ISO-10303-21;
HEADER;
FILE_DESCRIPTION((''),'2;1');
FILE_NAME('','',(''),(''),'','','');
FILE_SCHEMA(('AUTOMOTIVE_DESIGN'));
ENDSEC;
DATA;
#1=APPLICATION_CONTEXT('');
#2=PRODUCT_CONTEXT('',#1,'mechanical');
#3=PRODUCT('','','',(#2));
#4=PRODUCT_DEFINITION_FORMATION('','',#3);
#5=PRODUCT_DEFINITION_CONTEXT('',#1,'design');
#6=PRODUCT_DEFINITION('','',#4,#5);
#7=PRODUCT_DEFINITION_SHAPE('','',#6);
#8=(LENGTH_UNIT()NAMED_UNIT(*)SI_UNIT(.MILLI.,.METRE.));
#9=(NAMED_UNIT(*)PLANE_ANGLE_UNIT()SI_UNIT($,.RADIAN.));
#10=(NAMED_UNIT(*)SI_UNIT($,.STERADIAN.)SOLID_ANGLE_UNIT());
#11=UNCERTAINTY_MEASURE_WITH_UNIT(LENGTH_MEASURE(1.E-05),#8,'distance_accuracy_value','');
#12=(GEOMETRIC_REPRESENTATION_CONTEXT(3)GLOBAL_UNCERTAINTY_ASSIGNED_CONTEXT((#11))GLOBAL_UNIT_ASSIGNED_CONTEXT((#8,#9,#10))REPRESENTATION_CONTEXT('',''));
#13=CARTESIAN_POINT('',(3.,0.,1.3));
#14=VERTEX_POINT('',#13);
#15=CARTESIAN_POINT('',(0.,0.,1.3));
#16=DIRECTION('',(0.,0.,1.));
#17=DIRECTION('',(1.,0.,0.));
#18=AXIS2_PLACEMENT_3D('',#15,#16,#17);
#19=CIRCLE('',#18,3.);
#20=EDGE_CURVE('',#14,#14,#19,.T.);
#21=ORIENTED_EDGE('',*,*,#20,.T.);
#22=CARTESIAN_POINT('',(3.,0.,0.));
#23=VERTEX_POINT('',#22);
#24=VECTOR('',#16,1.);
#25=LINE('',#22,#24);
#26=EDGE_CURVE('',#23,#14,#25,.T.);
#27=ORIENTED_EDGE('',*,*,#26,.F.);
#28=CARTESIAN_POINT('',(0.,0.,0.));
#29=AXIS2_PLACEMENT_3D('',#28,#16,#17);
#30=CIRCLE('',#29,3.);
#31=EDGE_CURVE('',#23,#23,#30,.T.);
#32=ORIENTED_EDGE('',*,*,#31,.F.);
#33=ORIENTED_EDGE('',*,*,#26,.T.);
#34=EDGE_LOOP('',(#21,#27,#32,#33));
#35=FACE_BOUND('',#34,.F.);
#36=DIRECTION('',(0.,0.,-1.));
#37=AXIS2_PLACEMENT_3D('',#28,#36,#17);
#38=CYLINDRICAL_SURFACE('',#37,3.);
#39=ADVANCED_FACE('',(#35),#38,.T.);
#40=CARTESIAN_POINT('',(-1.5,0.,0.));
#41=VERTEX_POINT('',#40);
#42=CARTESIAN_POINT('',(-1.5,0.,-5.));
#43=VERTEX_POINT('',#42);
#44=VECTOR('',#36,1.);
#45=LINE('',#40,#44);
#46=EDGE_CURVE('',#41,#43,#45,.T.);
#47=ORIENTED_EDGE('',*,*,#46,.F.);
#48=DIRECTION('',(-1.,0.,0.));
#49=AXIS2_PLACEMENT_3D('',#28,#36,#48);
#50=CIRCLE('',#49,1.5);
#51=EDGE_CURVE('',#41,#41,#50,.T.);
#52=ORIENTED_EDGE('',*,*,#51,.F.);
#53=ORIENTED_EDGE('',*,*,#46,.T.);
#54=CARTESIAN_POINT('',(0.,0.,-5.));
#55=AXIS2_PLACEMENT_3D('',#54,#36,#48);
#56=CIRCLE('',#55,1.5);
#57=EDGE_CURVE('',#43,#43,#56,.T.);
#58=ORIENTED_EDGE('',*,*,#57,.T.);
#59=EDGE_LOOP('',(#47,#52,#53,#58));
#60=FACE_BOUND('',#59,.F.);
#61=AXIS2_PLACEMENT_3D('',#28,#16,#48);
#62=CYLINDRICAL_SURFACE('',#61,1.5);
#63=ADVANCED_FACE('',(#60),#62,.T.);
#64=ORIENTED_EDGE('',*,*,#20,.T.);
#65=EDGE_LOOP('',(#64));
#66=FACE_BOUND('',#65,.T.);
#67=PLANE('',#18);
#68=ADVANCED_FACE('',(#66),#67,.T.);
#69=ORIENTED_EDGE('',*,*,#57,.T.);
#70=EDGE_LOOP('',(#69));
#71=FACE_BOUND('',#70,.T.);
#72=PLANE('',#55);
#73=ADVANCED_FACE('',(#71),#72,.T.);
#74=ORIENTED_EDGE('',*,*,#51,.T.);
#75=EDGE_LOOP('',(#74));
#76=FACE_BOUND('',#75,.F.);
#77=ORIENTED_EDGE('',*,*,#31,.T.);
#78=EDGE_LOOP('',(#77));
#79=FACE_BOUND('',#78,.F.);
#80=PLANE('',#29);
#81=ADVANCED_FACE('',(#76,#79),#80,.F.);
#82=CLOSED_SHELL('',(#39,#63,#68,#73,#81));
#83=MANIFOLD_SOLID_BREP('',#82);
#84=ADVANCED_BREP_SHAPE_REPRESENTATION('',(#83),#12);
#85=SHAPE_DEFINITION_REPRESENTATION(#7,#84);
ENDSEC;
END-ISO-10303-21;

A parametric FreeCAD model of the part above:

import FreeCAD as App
import Part
import Sketcher
from FreeCAD import Vector
Q = App.Units.Quantity

doc = App.newDocument("Part")
body = doc.addObject("PartDesign::Body", "Body")

# Sketch on XY plane
sketch1 = body.newObject("Sketcher::SketchObject", "Sketch")
sketch1.AttachmentSupport = (doc.getObject("XY_Plane"), [""])
sketch1.MapMode = "FlatFace"
sketch1.addGeometry(Part.Circle(Vector(0, 0, 0), Vector(0, 0, 1), 3), False)
sketch1.addConstraint(Sketcher.Constraint("Coincident", 0, 3, -1, 1))
sketch1.addConstraint(Sketcher.Constraint("Diameter", 0, Q("6 mm")))
pad1 = body.newObject("PartDesign::Pad", "Pad")
pad1.Profile = sketch1
pad1.Length = 1.3

# Sketch on XY plane
sketch2 = body.newObject("Sketcher::SketchObject", "Sketch001")
sketch2.AttachmentSupport = (doc.getObject("XY_Plane"), [""])
sketch2.MapMode = "FlatFace"
sketch2.addGeometry(Part.Circle(Vector(0, 0, 0), Vector(0, 0, 1), 1.5), False)
sketch2.addConstraint(Sketcher.Constraint("Coincident", 0, 3, -1, 1))
sketch2.addConstraint(Sketcher.Constraint("Diameter", 0, Q("3 mm")))
pad2 = body.newObject("PartDesign::Pad", "Pad001")
pad2.Profile = sketch2
pad2.Length = 5
pad2.Reversed = True

doc.recompute()
